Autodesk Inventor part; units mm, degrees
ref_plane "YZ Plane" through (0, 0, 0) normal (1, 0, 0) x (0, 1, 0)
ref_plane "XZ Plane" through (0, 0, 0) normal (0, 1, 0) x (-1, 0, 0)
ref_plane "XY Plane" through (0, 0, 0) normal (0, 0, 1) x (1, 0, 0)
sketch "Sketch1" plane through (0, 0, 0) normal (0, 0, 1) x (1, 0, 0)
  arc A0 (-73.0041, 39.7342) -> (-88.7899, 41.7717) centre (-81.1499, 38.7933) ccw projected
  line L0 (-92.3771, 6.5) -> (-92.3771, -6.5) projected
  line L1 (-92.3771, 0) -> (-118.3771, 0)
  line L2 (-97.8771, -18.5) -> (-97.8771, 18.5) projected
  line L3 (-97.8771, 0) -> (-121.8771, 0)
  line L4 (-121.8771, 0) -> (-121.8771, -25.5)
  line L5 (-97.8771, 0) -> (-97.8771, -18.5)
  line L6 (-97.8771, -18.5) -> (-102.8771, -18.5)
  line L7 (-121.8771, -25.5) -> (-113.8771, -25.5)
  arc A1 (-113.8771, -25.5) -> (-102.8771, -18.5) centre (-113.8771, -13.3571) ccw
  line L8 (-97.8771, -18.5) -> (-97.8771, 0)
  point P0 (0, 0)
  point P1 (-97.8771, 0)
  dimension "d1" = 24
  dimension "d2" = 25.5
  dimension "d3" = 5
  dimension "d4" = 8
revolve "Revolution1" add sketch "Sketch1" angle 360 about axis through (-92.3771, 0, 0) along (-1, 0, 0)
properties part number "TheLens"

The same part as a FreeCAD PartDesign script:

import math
import FreeCAD as App
import Part
import Sketcher

doc = App.newDocument("Part")
body = doc.addObject("PartDesign::Body", "Body")

# Sketch on XY plane
sketch1 = body.newObject("Sketcher::SketchObject", "Sketch")
sketch1.AttachmentSupport = (doc.getObject("XY_Plane"), [""])
sketch1.MapMode = "FlatFace"
sketch1.addGeometry([
    Part.LineSegment(App.Vector(-98, -18, 0), App.Vector(-98, 0, 0)),  # 0
    Part.LineSegment(App.Vector(-98, 0, 0), App.Vector(-122, 0, 0)),  # 1
    Part.LineSegment(App.Vector(-122, 0, 0), App.Vector(-122, -26, 0)),  # 2
    Part.LineSegment(App.Vector(-122, -26, 0), App.Vector(-114, -26, 0)),  # 3
    Part.ArcOfCircle(Part.Circle(App.Vector(-114, -13, 0), App.Vector(0, 0, 1), 12), math.radians(-90), math.radians(-25)),  # 4
    Part.LineSegment(App.Vector(-103, -18, 0), App.Vector(-98, -18, 0)),  # 5
], False)
sketch1.addConstraint([
    Sketcher.Constraint("Coincident", 0, 2, 1, 1),
    Sketcher.Constraint("Coincident", 1, 2, 2, 1),
    Sketcher.Constraint("Coincident", 2, 2, 3, 1),
    Sketcher.Constraint("Tangent", 3, 2, 4, 1),
    Sketcher.Constraint("Coincident", 4, 2, 5, 1),
    Sketcher.Constraint("Coincident", 5, 2, 0, 1),
    Sketcher.Constraint("Vertical", 0),
    Sketcher.Constraint("Horizontal", 1),
    Sketcher.Constraint("Vertical", 2),
    Sketcher.Constraint("Horizontal", 3),
    Sketcher.Constraint("Horizontal", 5),
    Sketcher.Constraint("PointOnObject", 0, 2, -1),
    Sketcher.Constraint("DistanceX", 1, 2, 1, 1, 24.0),
    Sketcher.Constraint("DistanceX", 3, 1, 3, 2, 8.0),
    Sketcher.Constraint("DistanceX", 5, 1, 5, 2, 5.0),
    Sketcher.Constraint("DistanceY", 2, 2, 2, 1, 25.5),
    Sketcher.Constraint("DistanceY", 0, 1, 0, 2, 18.5),
    Sketcher.Constraint("DistanceX", 4, 3, -1, 1, 113.877),
])
revolution = body.newObject("PartDesign::Revolution", "Revolution")
revolution.Profile = sketch1
revolution.ReferenceAxis = (sketch1, ["H_Axis"])
revolution.Angle = 360

doc.recompute()
